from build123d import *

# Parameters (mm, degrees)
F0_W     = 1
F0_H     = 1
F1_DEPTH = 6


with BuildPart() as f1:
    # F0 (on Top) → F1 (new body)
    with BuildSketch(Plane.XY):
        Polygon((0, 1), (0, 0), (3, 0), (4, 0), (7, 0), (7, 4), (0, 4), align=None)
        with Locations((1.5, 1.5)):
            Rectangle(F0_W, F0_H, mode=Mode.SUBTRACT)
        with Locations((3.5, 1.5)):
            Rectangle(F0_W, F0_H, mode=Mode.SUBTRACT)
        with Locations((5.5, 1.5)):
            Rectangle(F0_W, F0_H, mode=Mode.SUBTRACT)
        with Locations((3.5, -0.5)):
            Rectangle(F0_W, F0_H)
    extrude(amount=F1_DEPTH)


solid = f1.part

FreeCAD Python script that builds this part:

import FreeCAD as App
import Part
import Sketcher

V = App.Vector

doc = App.newDocument("Part")
body = doc.addObject("PartDesign::Body", "Body")

sketch1 = doc.addObject("Sketcher::SketchObject", "Sketch")
body.addObject(sketch1)
sketch1.AttachmentSupport = (doc.XY_Plane, [""])
sketch1.MapMode = "FlatFace"
sketch1.addGeometry(Part.LineSegment(V(0, 0, 0), V(3, 0, 0)), False)
sketch1.addGeometry(Part.LineSegment(V(3, 0, 0), V(3, -1, 0)), False)
sketch1.addGeometry(Part.LineSegment(V(3, -1, 0), V(4, -1, 0)), False)
sketch1.addGeometry(Part.LineSegment(V(4, -1, 0), V(4, 0, 0)), False)
sketch1.addGeometry(Part.LineSegment(V(4, 0, 0), V(7, 0, 0)), False)
sketch1.addGeometry(Part.LineSegment(V(7, 0, 0), V(7, 4, 0)), False)
sketch1.addGeometry(Part.LineSegment(V(7, 4, 0), V(0, 4, 0)), False)
sketch1.addGeometry(Part.LineSegment(V(0, 4, 0), V(0, 0, 0)), False)
sketch1.addGeometry(Part.LineSegment(V(2, 1, 0), V(1, 1, 0)), False)
sketch1.addGeometry(Part.LineSegment(V(1, 1, 0), V(1, 2, 0)), False)
sketch1.addGeometry(Part.LineSegment(V(1, 2, 0), V(2, 2, 0)), False)
sketch1.addGeometry(Part.LineSegment(V(2, 2, 0), V(2, 1, 0)), False)
sketch1.addGeometry(Part.LineSegment(V(4, 1, 0), V(3, 1, 0)), False)
sketch1.addGeometry(Part.LineSegment(V(3, 1, 0), V(3, 2, 0)), False)
sketch1.addGeometry(Part.LineSegment(V(3, 2, 0), V(4, 2, 0)), False)
sketch1.addGeometry(Part.LineSegment(V(4, 2, 0), V(4, 1, 0)), False)
sketch1.addGeometry(Part.LineSegment(V(6, 1, 0), V(5, 1, 0)), False)
sketch1.addGeometry(Part.LineSegment(V(5, 1, 0), V(5, 2, 0)), False)
sketch1.addGeometry(Part.LineSegment(V(5, 2, 0), V(6, 2, 0)), False)
sketch1.addGeometry(Part.LineSegment(V(6, 2, 0), V(6, 1, 0)), False)
sketch1.addConstraint(Sketcher.Constraint("Coincident", 0, 2, 1, 1))
sketch1.addConstraint(Sketcher.Constraint("Coincident", 1, 2, 2, 1))
sketch1.addConstraint(Sketcher.Constraint("Coincident", 2, 2, 3, 1))
sketch1.addConstraint(Sketcher.Constraint("Coincident", 3, 2, 4, 1))
sketch1.addConstraint(Sketcher.Constraint("Coincident", 4, 2, 5, 1))
sketch1.addConstraint(Sketcher.Constraint("Coincident", 5, 2, 6, 1))
sketch1.addConstraint(Sketcher.Constraint("Coincident", 6, 2, 7, 1))
sketch1.addConstraint(Sketcher.Constraint("Coincident", 7, 2, 0, 1))
sketch1.addConstraint(Sketcher.Constraint("Coincident", 8, 2, 9, 1))
sketch1.addConstraint(Sketcher.Constraint("Coincident", 9, 2, 10, 1))
sketch1.addConstraint(Sketcher.Constraint("Coincident", 10, 2, 11, 1))
sketch1.addConstraint(Sketcher.Constraint("Coincident", 11, 2, 8, 1))
sketch1.addConstraint(Sketcher.Constraint("Coincident", 12, 2, 13, 1))
sketch1.addConstraint(Sketcher.Constraint("Coincident", 13, 2, 14, 1))
sketch1.addConstraint(Sketcher.Constraint("Coincident", 14, 2, 15, 1))
sketch1.addConstraint(Sketcher.Constraint("Coincident", 15, 2, 12, 1))
sketch1.addConstraint(Sketcher.Constraint("Coincident", 16, 2, 17, 1))
sketch1.addConstraint(Sketcher.Constraint("Coincident", 17, 2, 18, 1))
sketch1.addConstraint(Sketcher.Constraint("Coincident", 18, 2, 19, 1))
sketch1.addConstraint(Sketcher.Constraint("Coincident", 19, 2, 16, 1))
sketch1.addConstraint(Sketcher.Constraint("Horizontal", 0))
sketch1.addConstraint(Sketcher.Constraint("Vertical", 1))
sketch1.addConstraint(Sketcher.Constraint("Horizontal", 2))
sketch1.addConstraint(Sketcher.Constraint("Vertical", 3))
sketch1.addConstraint(Sketcher.Constraint("Horizontal", 4))
sketch1.addConstraint(Sketcher.Constraint("Vertical", 5))
sketch1.addConstraint(Sketcher.Constraint("Horizontal", 6))
sketch1.addConstraint(Sketcher.Constraint("Vertical", 7))
sketch1.addConstraint(Sketcher.Constraint("Horizontal", 8))
sketch1.addConstraint(Sketcher.Constraint("Vertical", 9))
sketch1.addConstraint(Sketcher.Constraint("Horizontal", 10))
sketch1.addConstraint(Sketcher.Constraint("Vertical", 11))
sketch1.addConstraint(Sketcher.Constraint("Horizontal", 12))
sketch1.addConstraint(Sketcher.Constraint("Vertical", 13))
sketch1.addConstraint(Sketcher.Constraint("Horizontal", 14))
sketch1.addConstraint(Sketcher.Constraint("Vertical", 15))
sketch1.addConstraint(Sketcher.Constraint("Horizontal", 16))
sketch1.addConstraint(Sketcher.Constraint("Vertical", 17))
sketch1.addConstraint(Sketcher.Constraint("Horizontal", 18))
sketch1.addConstraint(Sketcher.Constraint("Vertical", 19))
sketch1.addConstraint(Sketcher.Constraint("Coincident", 7, 2, -1, 1))
sketch1.addConstraint(Sketcher.Constraint("Symmetric", 1, 2, 12, 2, -1))
sketch1.addConstraint(Sketcher.Constraint("PointOnObject", 3, 2, -1))
sketch1.addConstraint(Sketcher.Constraint("Horizontal", 11, 2, 12, 2))
sketch1.addConstraint(Sketcher.Constraint("Horizontal", 10, 2, 13, 2))
sketch1.addConstraint(Sketcher.Constraint("Horizontal", 15, 2, 16, 2))
sketch1.addConstraint(Sketcher.Constraint("Horizontal", 14, 2, 17, 2))
sketch1.addConstraint(Sketcher.Constraint("Vertical", 3, 2, 14, 2))
sketch1.addConstraint(Sketcher.Constraint("Equal", 0, 4))
sketch1.addConstraint(Sketcher.Constraint("Equal", 2, 8))
sketch1.addConstraint(Sketcher.Constraint("Equal", 14, 16))
sketch1.addConstraint(Sketcher.Constraint("Equal", 18, 1))
sketch1.addConstraint(Sketcher.Constraint("Equal", 3, 9))
sketch1.addConstraint(Sketcher.Constraint("DistanceX", 0, 1, 0, 2, 3.0))
sketch1.addConstraint(Sketcher.Constraint("DistanceX", 2, 1, 2, 2, 1.0))
sketch1.addConstraint(Sketcher.Constraint("DistanceY", 5, 1, 5, 2, 4.0))
sketch1.addConstraint(Sketcher.Constraint("DistanceX", -1, 1, 8, 2, 1.0))
sketch1.addConstraint(Sketcher.Constraint("DistanceX", -1, 1, 16, 2, 5.0))
pad1 = doc.addObject("PartDesign::Pad", "Pad")
body.addObject(pad1)
pad1.Profile = sketch1
pad1.Length = 6

doc.recompute()
